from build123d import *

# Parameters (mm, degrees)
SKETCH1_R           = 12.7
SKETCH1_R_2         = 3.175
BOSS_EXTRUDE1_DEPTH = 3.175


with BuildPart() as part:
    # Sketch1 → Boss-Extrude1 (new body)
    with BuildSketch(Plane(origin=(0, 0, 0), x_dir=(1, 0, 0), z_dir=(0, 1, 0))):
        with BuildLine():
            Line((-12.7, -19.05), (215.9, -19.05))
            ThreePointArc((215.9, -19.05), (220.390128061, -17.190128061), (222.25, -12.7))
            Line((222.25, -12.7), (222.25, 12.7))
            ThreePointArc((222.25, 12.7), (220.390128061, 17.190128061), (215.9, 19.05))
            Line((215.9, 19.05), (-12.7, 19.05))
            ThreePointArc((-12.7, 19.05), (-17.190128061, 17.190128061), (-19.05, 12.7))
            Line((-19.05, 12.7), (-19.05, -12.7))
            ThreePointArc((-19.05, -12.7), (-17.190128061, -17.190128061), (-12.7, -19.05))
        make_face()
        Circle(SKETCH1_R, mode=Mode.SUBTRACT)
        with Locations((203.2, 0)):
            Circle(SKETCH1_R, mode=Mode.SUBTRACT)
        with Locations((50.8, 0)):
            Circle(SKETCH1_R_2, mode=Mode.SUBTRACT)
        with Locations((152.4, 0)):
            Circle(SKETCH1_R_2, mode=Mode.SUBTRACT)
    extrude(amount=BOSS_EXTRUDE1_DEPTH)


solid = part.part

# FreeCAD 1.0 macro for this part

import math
import FreeCAD as App
import Part
import Sketcher

V = App.Vector
Q = App.Units.Quantity

doc = App.newDocument("Part")
params = doc.addObject("Spreadsheet::Sheet", "Params")
for row, (alias, value) in enumerate([
    ("sketch1_diameter", "1 in"),
    ("sketch1_diameter2", "0.25 in"),
    ("sketch1_width", "9 in"),
    ("sketch1_height", "1 in"),
    ("sketch1_radius", "0.25 in"),
    ("pad1_length", "0.125 in"),
], start=1):
    params.set(f"A{row}", alias)
    params.set(f"B{row}", "=" + value)
    params.setAlias(f"B{row}", alias)

body = doc.addObject("PartDesign::Body", "Body")

sketch1 = body.newObject("Sketcher::SketchObject", "Sketch")
sketch1.AttachmentSupport = (doc.getObject("XZ_Plane"), [""])
sketch1.MapMode = "FlatFace"
sketch1.addGeometry([
    Part.LineSegment(V(-12.7, 19.05, 0), V(215.9, 19.05, 0)),
    Part.ArcOfCircle(Part.Circle(V(215.9, 12.7, 0), V(0, 0, 1), 6.35), math.radians(0), math.radians(90)),
    Part.LineSegment(V(222.25, 12.7, 0), V(222.25, -12.7, 0)),
    Part.ArcOfCircle(Part.Circle(V(215.9, -12.7, 0), V(0, 0, 1), 6.35), math.radians(-90), math.radians(0)),
    Part.LineSegment(V(215.9, -19.05, 0), V(-12.7, -19.05, 0)),
    Part.ArcOfCircle(Part.Circle(V(-12.7, -12.7, 0), V(0, 0, 1), 6.35), math.radians(180), math.radians(270)),
    Part.LineSegment(V(-19.05, -12.7, 0), V(-19.05, 12.7, 0)),
    Part.ArcOfCircle(Part.Circle(V(-12.7, 12.7, 0), V(0, 0, 1), 6.35), math.radians(90), math.radians(180)),
    Part.Circle(V(0, 0, 0), V(0, 0, 1), 12.7),
    Part.Circle(V(50.8, 0, 0), V(0, 0, 1), 3.175),
    Part.Circle(V(152.4, 0, 0), V(0, 0, 1), 3.175),
    Part.Circle(V(203.2, 0, 0), V(0, 0, 1), 12.7),
], False)
sketch1.addConstraint([
    Sketcher.Constraint("Tangent", 0, 2, 1, 2),
    Sketcher.Constraint("Tangent", 1, 1, 2, 1),
    Sketcher.Constraint("Tangent", 2, 2, 3, 2),
    Sketcher.Constraint("Tangent", 3, 1, 4, 1),
    Sketcher.Constraint("Tangent", 4, 2, 5, 2),
    Sketcher.Constraint("Tangent", 5, 1, 6, 1),
    Sketcher.Constraint("Tangent", 6, 2, 7, 2),
    Sketcher.Constraint("Tangent", 7, 1, 0, 1),
    Sketcher.Constraint("Horizontal", 0),
    Sketcher.Constraint("Vertical", 2),
    Sketcher.Constraint("Horizontal", 4),
    Sketcher.Constraint("Vertical", 6),
    Sketcher.Constraint("Coincident", 8, 3, -1, 1),
    Sketcher.Constraint("Equal", 1, 3),
    Sketcher.Constraint("Equal", 3, 5),
    Sketcher.Constraint("Equal", 5, 7),
    Sketcher.Constraint("Equal", 9, 10),
    Sketcher.Constraint("Equal", 8, 11),
    Sketcher.Constraint("PointOnObject", 9, 3, -1),
    Sketcher.Constraint("PointOnObject", 10, 3, -1),
    Sketcher.Constraint("PointOnObject", 11, 3, -1),
    Sketcher.Constraint("Diameter", 8, Q("1 in")),
    Sketcher.Constraint("Diameter", 9, Q("0.25 in")),
    Sketcher.Constraint("DistanceX", 0, 1, 0, 2, Q("9 in")),
    Sketcher.Constraint("DistanceY", 2, 2, 2, 1, Q("1 in")),
    Sketcher.Constraint("Radius", 1, Q("0.25 in")),
    Sketcher.Constraint("DistanceX", -1, 1, 9, 3, Q("2 in")),
    Sketcher.Constraint("DistanceX", -1, 1, 10, 3, Q("6 in")),
    Sketcher.Constraint("DistanceX", -1, 1, 11, 3, Q("8 in")),
    Sketcher.Constraint("DistanceX", -1, 1, 1, 3, Q("8.5 in")),
    Sketcher.Constraint("DistanceY", -1, 1, 1, 3, Q("0.5 in")),
])
sketch1.setExpression("Constraints[21]", "Params.sketch1_diameter")
sketch1.setExpression("Constraints[22]", "Params.sketch1_diameter2")
sketch1.setExpression("Constraints[23]", "Params.sketch1_width")
sketch1.setExpression("Constraints[24]", "Params.sketch1_height")
sketch1.setExpression("Constraints[25]", "Params.sketch1_radius")
pad1 = body.newObject("PartDesign::Pad", "Pad")
pad1.Profile = sketch1
pad1.setExpression("Length", "Params.pad1_length")
pad1.Reversed = True

doc.recompute()
